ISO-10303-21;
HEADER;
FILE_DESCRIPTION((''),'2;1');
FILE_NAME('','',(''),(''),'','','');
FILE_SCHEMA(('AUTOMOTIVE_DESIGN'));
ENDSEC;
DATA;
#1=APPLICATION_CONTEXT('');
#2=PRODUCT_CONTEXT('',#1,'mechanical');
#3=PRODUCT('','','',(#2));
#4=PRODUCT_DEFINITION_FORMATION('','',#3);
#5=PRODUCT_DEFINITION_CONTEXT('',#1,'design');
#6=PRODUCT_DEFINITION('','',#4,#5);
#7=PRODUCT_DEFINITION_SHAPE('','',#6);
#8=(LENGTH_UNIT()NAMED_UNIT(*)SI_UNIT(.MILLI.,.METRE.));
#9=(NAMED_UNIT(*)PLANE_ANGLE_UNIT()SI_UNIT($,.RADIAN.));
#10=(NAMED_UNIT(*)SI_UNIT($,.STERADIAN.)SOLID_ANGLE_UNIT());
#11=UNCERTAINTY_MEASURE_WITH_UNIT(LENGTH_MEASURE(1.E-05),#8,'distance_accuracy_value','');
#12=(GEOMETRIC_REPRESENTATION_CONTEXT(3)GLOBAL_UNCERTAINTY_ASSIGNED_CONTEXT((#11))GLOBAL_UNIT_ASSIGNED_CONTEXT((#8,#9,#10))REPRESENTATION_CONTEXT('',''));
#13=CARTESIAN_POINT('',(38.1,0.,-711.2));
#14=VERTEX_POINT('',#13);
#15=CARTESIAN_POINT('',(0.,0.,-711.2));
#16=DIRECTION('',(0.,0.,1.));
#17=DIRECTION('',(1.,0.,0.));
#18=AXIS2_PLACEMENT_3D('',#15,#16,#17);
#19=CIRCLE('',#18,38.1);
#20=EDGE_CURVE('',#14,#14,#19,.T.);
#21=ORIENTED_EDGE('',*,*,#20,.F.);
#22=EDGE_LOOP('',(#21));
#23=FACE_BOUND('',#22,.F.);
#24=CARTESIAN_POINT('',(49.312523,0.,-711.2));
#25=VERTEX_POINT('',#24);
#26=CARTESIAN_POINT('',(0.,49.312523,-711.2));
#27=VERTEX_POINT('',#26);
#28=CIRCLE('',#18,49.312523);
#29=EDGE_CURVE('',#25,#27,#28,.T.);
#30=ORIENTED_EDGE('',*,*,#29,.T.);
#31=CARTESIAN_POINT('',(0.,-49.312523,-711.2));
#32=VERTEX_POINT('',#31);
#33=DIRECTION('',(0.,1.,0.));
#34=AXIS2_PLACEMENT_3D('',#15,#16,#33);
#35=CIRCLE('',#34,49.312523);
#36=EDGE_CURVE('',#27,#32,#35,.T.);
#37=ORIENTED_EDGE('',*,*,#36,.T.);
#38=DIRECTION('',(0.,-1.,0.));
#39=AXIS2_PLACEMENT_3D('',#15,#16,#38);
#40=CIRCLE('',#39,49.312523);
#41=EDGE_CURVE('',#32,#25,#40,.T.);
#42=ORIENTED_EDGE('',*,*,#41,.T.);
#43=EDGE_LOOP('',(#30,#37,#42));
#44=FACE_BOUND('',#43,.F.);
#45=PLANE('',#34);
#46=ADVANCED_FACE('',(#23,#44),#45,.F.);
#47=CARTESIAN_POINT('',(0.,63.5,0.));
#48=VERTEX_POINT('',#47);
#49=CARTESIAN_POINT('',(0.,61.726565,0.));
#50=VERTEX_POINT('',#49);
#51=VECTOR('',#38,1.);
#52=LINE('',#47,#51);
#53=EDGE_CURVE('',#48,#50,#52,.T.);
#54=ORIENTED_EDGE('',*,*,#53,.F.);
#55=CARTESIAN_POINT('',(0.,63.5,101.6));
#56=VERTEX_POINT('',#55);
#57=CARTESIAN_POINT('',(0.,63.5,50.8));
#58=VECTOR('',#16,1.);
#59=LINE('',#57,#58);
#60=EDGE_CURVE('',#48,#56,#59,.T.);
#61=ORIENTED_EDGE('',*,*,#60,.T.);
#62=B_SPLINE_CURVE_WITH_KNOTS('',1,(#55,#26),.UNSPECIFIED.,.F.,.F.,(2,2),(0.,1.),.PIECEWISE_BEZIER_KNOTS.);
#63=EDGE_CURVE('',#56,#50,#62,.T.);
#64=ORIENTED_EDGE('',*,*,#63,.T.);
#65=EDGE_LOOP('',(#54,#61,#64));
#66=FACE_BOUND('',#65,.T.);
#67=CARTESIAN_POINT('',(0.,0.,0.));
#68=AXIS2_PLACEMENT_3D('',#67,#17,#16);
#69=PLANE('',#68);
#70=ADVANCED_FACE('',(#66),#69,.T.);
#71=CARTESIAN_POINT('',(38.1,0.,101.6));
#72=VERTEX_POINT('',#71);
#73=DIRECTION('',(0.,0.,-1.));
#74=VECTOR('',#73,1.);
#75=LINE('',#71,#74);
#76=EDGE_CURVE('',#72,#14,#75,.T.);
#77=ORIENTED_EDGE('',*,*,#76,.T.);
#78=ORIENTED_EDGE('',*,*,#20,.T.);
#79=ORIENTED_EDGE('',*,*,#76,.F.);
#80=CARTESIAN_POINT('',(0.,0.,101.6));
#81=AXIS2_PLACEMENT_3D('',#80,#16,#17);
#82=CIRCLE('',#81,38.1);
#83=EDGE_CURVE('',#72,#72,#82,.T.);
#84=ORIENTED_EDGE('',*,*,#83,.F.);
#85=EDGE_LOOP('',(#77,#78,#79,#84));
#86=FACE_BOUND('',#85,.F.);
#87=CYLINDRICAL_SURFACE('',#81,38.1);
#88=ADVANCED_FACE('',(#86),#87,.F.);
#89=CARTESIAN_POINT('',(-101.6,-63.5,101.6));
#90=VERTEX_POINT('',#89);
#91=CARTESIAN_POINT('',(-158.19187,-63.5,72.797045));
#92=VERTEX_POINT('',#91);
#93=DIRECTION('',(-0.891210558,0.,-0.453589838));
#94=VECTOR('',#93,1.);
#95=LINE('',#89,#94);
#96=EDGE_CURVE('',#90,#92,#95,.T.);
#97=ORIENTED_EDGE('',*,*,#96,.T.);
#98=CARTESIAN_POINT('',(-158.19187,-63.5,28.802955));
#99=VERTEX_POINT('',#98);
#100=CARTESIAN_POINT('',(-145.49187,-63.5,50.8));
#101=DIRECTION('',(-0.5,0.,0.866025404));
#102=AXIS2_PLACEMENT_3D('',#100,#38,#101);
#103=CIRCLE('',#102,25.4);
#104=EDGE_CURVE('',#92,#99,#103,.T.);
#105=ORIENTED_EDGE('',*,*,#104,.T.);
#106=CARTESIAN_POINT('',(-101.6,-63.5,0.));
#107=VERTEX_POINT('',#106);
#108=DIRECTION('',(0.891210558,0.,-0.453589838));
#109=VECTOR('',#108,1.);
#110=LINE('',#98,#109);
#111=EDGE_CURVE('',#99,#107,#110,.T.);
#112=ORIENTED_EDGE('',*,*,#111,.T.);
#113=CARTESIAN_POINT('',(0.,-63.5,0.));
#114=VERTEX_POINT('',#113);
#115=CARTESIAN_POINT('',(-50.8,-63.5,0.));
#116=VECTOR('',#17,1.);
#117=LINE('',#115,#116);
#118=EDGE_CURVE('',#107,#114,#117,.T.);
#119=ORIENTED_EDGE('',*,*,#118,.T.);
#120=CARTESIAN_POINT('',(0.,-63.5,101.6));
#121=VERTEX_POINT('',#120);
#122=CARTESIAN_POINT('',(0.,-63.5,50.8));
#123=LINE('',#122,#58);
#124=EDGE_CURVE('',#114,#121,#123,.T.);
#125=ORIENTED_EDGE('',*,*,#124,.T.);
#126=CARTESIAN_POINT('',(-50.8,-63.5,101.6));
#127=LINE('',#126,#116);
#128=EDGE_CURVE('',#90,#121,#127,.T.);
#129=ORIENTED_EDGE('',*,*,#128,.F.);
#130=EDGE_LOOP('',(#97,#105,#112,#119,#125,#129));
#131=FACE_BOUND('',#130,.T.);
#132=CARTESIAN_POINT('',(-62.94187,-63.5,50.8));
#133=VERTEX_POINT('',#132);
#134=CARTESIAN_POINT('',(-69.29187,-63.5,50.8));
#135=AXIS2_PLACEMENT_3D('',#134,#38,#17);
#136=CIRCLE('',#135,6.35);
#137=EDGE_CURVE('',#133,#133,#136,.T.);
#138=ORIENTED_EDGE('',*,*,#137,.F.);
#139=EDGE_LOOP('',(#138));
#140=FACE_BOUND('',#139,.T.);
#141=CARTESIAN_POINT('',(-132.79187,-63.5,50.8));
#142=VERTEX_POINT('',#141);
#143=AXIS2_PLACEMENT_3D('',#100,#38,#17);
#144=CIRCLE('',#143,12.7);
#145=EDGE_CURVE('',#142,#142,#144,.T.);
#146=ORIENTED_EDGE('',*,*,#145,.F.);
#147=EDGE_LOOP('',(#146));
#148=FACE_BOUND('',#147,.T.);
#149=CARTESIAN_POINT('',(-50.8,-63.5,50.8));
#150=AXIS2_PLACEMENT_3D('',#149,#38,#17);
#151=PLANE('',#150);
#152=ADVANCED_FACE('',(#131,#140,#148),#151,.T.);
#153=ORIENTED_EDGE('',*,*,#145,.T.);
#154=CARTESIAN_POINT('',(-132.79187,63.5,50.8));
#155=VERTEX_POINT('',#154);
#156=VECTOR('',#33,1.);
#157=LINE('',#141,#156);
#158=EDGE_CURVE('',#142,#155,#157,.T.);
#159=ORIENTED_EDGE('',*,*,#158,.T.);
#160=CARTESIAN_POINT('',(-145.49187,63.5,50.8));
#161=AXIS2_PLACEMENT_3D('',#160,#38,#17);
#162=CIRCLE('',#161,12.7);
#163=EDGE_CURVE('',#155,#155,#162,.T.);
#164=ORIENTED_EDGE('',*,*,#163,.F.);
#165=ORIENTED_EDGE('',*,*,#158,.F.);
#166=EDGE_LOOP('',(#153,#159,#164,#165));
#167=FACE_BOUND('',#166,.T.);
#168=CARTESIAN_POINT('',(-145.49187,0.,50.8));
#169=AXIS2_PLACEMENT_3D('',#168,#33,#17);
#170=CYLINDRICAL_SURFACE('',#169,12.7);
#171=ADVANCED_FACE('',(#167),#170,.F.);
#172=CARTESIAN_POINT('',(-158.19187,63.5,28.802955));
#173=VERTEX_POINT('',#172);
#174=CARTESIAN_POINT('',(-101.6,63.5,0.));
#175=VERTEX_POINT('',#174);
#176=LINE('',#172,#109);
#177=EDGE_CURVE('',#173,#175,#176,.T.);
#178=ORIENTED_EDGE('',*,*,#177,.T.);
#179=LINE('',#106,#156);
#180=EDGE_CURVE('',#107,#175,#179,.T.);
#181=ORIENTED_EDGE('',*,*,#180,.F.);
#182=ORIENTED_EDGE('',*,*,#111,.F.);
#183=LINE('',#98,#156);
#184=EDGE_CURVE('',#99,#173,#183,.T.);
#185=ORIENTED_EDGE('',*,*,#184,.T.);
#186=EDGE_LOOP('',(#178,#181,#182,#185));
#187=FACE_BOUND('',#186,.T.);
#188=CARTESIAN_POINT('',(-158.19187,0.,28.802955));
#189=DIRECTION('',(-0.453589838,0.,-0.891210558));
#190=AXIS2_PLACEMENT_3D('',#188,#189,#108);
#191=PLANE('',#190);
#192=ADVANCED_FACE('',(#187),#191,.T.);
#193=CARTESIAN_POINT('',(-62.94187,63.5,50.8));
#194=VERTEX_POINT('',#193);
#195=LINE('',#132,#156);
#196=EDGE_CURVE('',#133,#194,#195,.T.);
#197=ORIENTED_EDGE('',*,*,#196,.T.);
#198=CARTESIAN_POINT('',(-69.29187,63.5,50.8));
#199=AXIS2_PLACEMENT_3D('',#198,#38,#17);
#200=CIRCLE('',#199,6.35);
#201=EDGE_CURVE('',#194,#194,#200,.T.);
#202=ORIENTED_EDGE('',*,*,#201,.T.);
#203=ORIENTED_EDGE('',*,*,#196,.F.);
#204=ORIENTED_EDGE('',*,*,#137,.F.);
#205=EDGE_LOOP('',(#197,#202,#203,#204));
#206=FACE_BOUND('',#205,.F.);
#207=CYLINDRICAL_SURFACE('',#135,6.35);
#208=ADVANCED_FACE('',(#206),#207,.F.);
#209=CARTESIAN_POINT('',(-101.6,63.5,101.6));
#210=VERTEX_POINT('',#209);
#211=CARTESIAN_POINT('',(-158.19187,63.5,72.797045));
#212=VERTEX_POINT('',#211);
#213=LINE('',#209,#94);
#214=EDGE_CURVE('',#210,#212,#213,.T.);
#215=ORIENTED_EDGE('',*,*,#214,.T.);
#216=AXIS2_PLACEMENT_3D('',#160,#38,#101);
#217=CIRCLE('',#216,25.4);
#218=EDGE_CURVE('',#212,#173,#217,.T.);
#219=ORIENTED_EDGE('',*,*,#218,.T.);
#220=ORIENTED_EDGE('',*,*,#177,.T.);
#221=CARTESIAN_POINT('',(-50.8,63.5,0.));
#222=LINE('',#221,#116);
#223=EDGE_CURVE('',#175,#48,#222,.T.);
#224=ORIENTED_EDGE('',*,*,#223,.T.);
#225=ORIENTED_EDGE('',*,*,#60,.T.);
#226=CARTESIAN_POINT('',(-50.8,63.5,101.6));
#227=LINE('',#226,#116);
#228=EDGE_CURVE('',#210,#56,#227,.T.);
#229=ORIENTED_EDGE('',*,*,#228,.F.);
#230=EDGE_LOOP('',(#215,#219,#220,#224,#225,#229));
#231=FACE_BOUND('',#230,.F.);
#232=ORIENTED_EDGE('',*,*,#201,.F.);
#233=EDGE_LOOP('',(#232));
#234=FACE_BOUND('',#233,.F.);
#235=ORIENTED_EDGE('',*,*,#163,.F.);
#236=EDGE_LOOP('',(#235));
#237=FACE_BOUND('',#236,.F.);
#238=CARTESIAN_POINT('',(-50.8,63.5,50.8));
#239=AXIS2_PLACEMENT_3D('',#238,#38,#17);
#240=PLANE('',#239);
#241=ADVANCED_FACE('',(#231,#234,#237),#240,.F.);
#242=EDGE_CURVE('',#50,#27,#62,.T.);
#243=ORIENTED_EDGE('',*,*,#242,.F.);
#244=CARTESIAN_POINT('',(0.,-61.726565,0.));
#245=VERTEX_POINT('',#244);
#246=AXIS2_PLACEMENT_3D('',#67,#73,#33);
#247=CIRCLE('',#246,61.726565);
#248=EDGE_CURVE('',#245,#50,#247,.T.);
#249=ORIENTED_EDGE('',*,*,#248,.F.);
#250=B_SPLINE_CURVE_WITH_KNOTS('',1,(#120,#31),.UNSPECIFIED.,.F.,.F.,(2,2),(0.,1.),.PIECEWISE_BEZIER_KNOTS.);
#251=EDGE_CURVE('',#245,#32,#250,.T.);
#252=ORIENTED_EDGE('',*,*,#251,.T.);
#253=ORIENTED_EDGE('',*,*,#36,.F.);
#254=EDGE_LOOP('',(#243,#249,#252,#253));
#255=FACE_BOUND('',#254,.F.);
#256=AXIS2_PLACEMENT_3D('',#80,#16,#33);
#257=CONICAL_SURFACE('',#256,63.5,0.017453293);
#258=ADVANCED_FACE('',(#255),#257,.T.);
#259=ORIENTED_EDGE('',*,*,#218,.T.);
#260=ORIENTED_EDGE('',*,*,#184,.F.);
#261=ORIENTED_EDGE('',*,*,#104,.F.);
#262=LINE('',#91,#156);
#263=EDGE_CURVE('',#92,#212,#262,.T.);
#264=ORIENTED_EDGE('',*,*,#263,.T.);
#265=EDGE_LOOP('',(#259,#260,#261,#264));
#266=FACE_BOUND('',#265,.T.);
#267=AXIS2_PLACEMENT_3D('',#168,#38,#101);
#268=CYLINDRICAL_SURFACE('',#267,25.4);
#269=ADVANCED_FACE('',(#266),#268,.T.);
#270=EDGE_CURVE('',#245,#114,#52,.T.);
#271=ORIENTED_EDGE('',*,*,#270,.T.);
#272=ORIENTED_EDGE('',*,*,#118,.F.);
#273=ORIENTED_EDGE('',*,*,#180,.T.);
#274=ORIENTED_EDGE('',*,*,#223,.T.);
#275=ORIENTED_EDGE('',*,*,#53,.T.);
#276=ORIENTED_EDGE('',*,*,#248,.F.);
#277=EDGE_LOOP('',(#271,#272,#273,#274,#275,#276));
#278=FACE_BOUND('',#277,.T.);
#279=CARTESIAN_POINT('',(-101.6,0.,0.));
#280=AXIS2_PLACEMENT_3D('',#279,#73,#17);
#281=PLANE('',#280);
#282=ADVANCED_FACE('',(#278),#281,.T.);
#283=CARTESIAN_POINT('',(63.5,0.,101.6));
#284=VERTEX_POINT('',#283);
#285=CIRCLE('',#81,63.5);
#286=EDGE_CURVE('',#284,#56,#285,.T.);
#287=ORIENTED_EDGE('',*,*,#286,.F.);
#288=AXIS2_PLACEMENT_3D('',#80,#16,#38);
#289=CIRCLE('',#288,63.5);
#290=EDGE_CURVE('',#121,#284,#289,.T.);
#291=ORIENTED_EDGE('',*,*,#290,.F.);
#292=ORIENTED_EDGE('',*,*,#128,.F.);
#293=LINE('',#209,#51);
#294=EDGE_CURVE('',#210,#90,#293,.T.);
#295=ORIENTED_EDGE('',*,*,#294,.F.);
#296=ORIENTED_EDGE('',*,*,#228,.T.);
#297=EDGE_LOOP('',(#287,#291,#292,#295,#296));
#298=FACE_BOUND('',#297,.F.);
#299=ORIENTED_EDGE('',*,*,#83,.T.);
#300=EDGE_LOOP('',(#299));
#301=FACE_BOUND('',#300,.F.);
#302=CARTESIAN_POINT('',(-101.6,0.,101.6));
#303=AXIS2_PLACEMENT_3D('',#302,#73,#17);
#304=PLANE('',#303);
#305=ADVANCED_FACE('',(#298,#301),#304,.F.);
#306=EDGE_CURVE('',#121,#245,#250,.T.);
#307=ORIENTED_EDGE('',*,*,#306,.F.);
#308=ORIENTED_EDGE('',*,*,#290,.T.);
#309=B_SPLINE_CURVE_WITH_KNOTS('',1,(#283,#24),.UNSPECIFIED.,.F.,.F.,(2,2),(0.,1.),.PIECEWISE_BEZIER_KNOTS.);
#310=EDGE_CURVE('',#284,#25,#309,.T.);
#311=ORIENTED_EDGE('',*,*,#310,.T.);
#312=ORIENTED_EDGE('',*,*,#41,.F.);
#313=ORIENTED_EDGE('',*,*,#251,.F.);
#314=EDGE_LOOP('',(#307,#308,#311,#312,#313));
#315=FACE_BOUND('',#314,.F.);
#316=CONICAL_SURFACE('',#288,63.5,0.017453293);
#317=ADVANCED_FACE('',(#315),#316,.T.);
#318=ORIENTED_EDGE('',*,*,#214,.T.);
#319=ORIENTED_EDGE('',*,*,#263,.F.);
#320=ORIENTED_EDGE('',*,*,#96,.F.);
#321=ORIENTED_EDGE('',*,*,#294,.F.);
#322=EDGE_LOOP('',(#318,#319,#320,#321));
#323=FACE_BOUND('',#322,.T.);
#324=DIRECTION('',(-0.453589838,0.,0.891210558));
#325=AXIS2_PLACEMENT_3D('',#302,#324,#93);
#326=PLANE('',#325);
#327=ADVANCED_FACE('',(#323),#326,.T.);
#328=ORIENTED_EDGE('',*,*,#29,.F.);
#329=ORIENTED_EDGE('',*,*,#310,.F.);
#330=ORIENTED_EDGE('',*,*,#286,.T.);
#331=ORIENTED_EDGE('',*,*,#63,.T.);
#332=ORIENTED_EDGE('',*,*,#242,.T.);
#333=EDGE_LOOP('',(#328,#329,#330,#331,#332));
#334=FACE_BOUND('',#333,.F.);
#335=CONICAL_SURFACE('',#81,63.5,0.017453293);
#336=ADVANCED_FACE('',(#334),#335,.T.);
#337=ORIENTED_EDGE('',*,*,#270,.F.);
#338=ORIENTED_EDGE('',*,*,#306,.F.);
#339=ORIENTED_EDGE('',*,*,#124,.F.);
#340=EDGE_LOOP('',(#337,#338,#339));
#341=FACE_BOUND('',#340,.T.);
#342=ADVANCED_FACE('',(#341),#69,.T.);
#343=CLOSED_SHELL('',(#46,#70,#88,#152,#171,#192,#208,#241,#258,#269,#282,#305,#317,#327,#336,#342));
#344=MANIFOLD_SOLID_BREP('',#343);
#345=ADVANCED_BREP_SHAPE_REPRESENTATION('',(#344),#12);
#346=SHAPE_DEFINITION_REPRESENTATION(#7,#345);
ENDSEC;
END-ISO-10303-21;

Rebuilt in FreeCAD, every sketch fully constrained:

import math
import FreeCAD as App
import Part
import Sketcher

V = App.Vector
Q = App.Units.Quantity

doc = App.newDocument("Part")
body = doc.addObject("PartDesign::Body", "Body")

# Sketch on XZ plane
sketch1 = body.newObject("Sketcher::SketchObject", "Sketch")
sketch1.AttachmentSupport = (doc.getObject("XZ_Plane"), [""])
sketch1.MapMode = "FlatFace"
sketch1.addGeometry(Part.LineSegment(V(-102, 0, 0), V(0, 0, 0)), False)
sketch1.addGeometry(Part.LineSegment(V(0, 0, 0), V(0, 102, 0)), False)
sketch1.addGeometry(Part.LineSegment(V(0, 102, 0), V(-102, 102, 0)), False)
sketch1.addGeometry(Part.LineSegment(V(-102, 102, 0), V(-158, 73, 0)), False)
sketch1.addGeometry(Part.ArcOfCircle(Part.Circle(V(-145, 51, 0), V(0, 0, 1), 25), math.radians(120), math.radians(240)), False)
sketch1.addGeometry(Part.LineSegment(V(-158, 29, 0), V(-102, 0, 0)), False)
sketch1.addGeometry(Part.Circle(V(-145, 51, 0), V(0, 0, 1), 13), False)
sketch1.addConstraint(Sketcher.Constraint("Coincident", 0, 2, 1, 1))
sketch1.addConstraint(Sketcher.Constraint("Coincident", 1, 2, 2, 1))
sketch1.addConstraint(Sketcher.Constraint("Coincident", 2, 2, 3, 1))
sketch1.addConstraint(Sketcher.Constraint("Coincident", 3, 2, 4, 1))
sketch1.addConstraint(Sketcher.Constraint("Coincident", 4, 2, 5, 1))
sketch1.addConstraint(Sketcher.Constraint("Coincident", 5, 2, 0, 1))
sketch1.addConstraint(Sketcher.Constraint("Horizontal", 0))
sketch1.addConstraint(Sketcher.Constraint("Vertical", 1))
sketch1.addConstraint(Sketcher.Constraint("Horizontal", 2))
sketch1.addConstraint(Sketcher.Constraint("Coincident", 0, 2, -1, 1))
sketch1.addConstraint(Sketcher.Constraint("Coincident", 6, 3, 4, 3))
sketch1.addConstraint(Sketcher.Constraint("Vertical", 3, 2, 4, 2))
sketch1.addConstraint(Sketcher.Constraint("Vertical", 2, 2, 5, 2))
sketch1.addConstraint(Sketcher.Constraint("Equal", 2, 1))
sketch1.addConstraint(Sketcher.Constraint("Equal", 3, 5))
sketch1.addConstraint(Sketcher.Constraint("Diameter", 6, Q("1 in")))
sketch1.addConstraint(Sketcher.Constraint("Radius", 4, Q("1 in")))
sketch1.addConstraint(Sketcher.Constraint("DistanceX", 0, 1, 0, 2, Q("4 in")))
sketch1.addConstraint(Sketcher.Constraint("Distance", 3, Q("2.5 in")))
sketch1.addConstraint(Sketcher.Constraint("DistanceX", 3, 2, 4, 3, Q("0.5 in")))
pad1 = body.newObject("PartDesign::Pad", "Pad")
pad1.Profile = sketch1
pad1.Length = Q("5 in")
pad1.Midplane = True

# Sketch on XY plane
sketch2 = body.newObject("Sketcher::SketchObject", "Sketch001")
sketch2.AttachmentSupport = (doc.getObject("XY_Plane"), [""])
sketch2.MapMode = "FlatFace"
sketch2.AttachmentOffset = App.Placement(V(0, 0, 4 * 25.4), App.Rotation())
sketch2.addGeometry(Part.ArcOfCircle(Part.Circle(V(0, 0, 0), V(0, 0, 1), 64), math.radians(90), math.radians(270)), False)
sketch2.addGeometry(Part.ArcOfCircle(Part.Circle(V(0, 0, 0), V(0, 0, 1), 64), math.radians(-90), math.radians(0)), False)
sketch2.addGeometry(Part.ArcOfCircle(Part.Circle(V(0, 0, 0), V(0, 0, 1), 64), math.radians(0), math.radians(90)), False)
sketch2.addConstraint(Sketcher.Constraint("Tangent", 0, 2, 1, 1))
sketch2.addConstraint(Sketcher.Constraint("Tangent", 1, 2, 2, 1))
sketch2.addConstraint(Sketcher.Constraint("Tangent", 2, 2, 0, 1))
sketch2.addConstraint(Sketcher.Constraint("Coincident", 0, 3, -1, 1))
sketch2.addConstraint(Sketcher.Constraint("PointOnObject", 0, 2, -2))
sketch2.addConstraint(Sketcher.Constraint("PointOnObject", 1, 2, -1))
sketch2.addConstraint(Sketcher.Constraint("PointOnObject", 2, 2, -2))
sketch2.addConstraint(Sketcher.Constraint("Radius", 0, Q("2.5 in")))
pad2 = body.newObject("PartDesign::Pad", "Pad001")
pad2.Profile = sketch2
pad2.Length = Q("32 in")
pad2.Reversed = True
pad2.TaperAngle = -1

# Sketch on XY plane
sketch3 = body.newObject("Sketcher::SketchObject", "Sketch002")
sketch3.AttachmentSupport = (doc.getObject("XY_Plane"), [""])
sketch3.MapMode = "FlatFace"
sketch3.AttachmentOffset = App.Placement(V(0, 0, 4 * 25.4), App.Rotation())
sketch3.addGeometry(Part.Circle(V(0, 0, 0), V(0, 0, 1), 38), False)
sketch3.addConstraint(Sketcher.Constraint("Coincident", 0, 3, -1, 1))
sketch3.addConstraint(Sketcher.Constraint("Diameter", 0, Q("3 in")))
pocket1 = body.newObject("PartDesign::Pocket", "Pocket")
pocket1.Profile = sketch3
pocket1.Type = "ThroughAll"

# Sketch on XZ plane
sketch4 = body.newObject("Sketcher::SketchObject", "Sketch003")
sketch4.AttachmentSupport = (doc.getObject("XZ_Plane"), [""])
sketch4.MapMode = "FlatFace"
sketch4.AttachmentOffset = App.Placement(V(0, 0, 2.5 * 25.4), App.Rotation())
sketch4.addGeometry(Part.Circle(V(-69, 51, 0), V(0, 0, 1), 6), False)
sketch4.addConstraint(Sketcher.Constraint("Diameter", 0, Q("0.5 in")))
sketch4.addConstraint(Sketcher.Constraint("DistanceY", -1, 1, 0, 3, Q("2 in")))
sketch4.addConstraint(Sketcher.Constraint("DistanceX", 0, 3, -1, 1, Q("69.29187 mm")))
pocket2 = body.newObject("PartDesign::Pocket", "Pocket001")
pocket2.Profile = sketch4
pocket2.Type = "ThroughAll"

doc.recompute()
